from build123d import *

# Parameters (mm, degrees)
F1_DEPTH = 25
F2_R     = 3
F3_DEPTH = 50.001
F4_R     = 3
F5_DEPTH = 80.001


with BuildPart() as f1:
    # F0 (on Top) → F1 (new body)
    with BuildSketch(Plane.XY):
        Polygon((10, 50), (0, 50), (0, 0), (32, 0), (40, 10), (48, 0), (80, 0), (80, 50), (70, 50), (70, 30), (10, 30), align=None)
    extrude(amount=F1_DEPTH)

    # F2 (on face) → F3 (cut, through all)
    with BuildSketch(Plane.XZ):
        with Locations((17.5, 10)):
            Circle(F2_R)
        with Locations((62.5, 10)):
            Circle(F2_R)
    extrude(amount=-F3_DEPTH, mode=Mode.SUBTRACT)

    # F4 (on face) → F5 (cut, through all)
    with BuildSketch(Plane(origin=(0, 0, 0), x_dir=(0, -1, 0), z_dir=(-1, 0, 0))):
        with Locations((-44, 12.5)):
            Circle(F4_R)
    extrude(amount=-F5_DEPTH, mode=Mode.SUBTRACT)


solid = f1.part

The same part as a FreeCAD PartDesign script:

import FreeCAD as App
import Part
import Sketcher


def add_polygon(sketch, points):
    """Adds a closed chain of lines whose ends are joined by coincident constraints."""
    first, n = sketch.GeometryCount, len(points)
    for a, b in zip(points, points[1:] + points[:1]):
        sketch.addGeometry(Part.LineSegment(App.Vector(*a, 0), App.Vector(*b, 0)), False)
    for i in range(n):
        sketch.addConstraint(Sketcher.Constraint("Coincident", first + i, 2, first + (i + 1) % n, 1))

doc = App.newDocument("Part")
body = doc.addObject("PartDesign::Body", "Body")

sketch1 = body.newObject("Sketcher::SketchObject", "Sketch")
sketch1.AttachmentSupport = (doc.getObject("XY_Plane"), [""])
sketch1.MapMode = "FlatFace"
add_polygon(sketch1, [(10, 50), (0, 50), (0, 0), (32, 0), (40, 10), (48, 0), (80, 0), (80, 50), (70, 50), (70, 30), (10, 30)])
sketch1.addConstraint([
    Sketcher.Constraint("Horizontal", 0),
    Sketcher.Constraint("Vertical", 1),
    Sketcher.Constraint("Horizontal", 2),
    Sketcher.Constraint("Horizontal", 5),
    Sketcher.Constraint("Vertical", 6),
    Sketcher.Constraint("Horizontal", 7),
    Sketcher.Constraint("Vertical", 8),
    Sketcher.Constraint("Horizontal", 9),
    Sketcher.Constraint("Vertical", 10),
    Sketcher.Constraint("Coincident", 1, 2, -1, 1),
    Sketcher.Constraint("PointOnObject", 4, 2, -1),
    Sketcher.Constraint("Horizontal", 0, 2, 6, 2),
    Sketcher.Constraint("Equal", 2, 5),
    Sketcher.Constraint("Equal", 0, 7),
    Sketcher.Constraint("Equal", 3, 4),
    Sketcher.Constraint("DistanceX", 0, 2, 0, 1, 10.0),
    Sketcher.Constraint("DistanceX", 2, 1, 2, 2, 32.0),
    Sketcher.Constraint("DistanceX", 9, 2, 9, 1, 60.0),
    Sketcher.Constraint("DistanceY", 1, 2, 1, 1, 50.0),
    Sketcher.Constraint("DistanceY", 8, 2, 8, 1, 20.0),
    Sketcher.Constraint("DistanceY", -1, 1, 3, 2, 10.0),
])
pad1 = body.newObject("PartDesign::Pad", "Pad")
pad1.Profile = sketch1
pad1.Length = 25

sketch2 = body.newObject("Sketcher::SketchObject", "Sketch001")
sketch2.AttachmentSupport = (doc.getObject("XZ_Plane"), [""])
sketch2.MapMode = "FlatFace"
sketch2.addGeometry([
    Part.Circle(App.Vector(17.5, 10, 0), App.Vector(0, 0, 1), 3),
    Part.Circle(App.Vector(62.5, 10, 0), App.Vector(0, 0, 1), 3),
], False)
sketch2.addConstraint([
    Sketcher.Constraint("Equal", 0, 1),
    Sketcher.Constraint("Horizontal", 0, 3, 1, 3),
    Sketcher.Constraint("Diameter", 0, 6.0),
    Sketcher.Constraint("DistanceY", -1, 1, 0, 3, 10.0),
    Sketcher.Constraint("DistanceX", 0, 3, 1, 3, 45.0),
    Sketcher.Constraint("DistanceX", -1, 1, 0, 3, 17.5),
])
pocket1 = body.newObject("PartDesign::Pocket", "Pocket")
pocket1.Profile = sketch2
pocket1.Type = "ThroughAll"

sketch3 = body.newObject("Sketcher::SketchObject", "Sketch002")
sketch3.AttachmentSupport = (doc.getObject("YZ_Plane"), [""])
sketch3.MapMode = "FlatFace"
sketch3.addGeometry(Part.Circle(App.Vector(44, 12.5, 0), App.Vector(0, 0, 1), 3), False)
sketch3.addConstraint([
    Sketcher.Constraint("Diameter", 0, 6.0),
    Sketcher.Constraint("DistanceX", -1, 1, 0, 3, 44.0),
    Sketcher.Constraint("DistanceY", -1, 1, 0, 3, 12.5),
])
pocket2 = body.newObject("PartDesign::Pocket", "Pocket001")
pocket2.Profile = sketch3
pocket2.Type = "ThroughAll"
pocket2.Reversed = True

doc.recompute()
